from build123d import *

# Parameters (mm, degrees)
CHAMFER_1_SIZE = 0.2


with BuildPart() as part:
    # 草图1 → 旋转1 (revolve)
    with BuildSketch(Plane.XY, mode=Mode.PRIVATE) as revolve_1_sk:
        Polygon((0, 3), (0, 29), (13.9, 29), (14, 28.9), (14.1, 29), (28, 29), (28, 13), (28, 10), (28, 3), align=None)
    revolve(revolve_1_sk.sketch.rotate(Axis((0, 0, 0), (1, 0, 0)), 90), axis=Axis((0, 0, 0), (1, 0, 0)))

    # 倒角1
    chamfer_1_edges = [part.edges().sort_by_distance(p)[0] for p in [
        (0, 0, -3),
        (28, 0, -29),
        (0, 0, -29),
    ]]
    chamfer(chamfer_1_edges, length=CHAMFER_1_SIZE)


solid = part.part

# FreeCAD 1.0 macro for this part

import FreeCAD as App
import Part
import Sketcher
from FreeCAD import Vector


def edges_at(feature, points):
    """Names of the edges that pass closest to the given points."""
    edges = feature.Shape.Edges
    near = lambda p: min(range(len(edges)), key=lambda i: edges[i].distToShape(Part.Vertex(*p))[0])
    return sorted({f"Edge{near(p) + 1}" for p in points})


def add_polygon(sketch, points):
    """Adds a closed chain of lines whose ends are joined by coincident constraints."""
    first, n = sketch.GeometryCount, len(points)
    for a, b in zip(points, points[1:] + points[:1]):
        sketch.addGeometry(Part.LineSegment(App.Vector(*a, 0), App.Vector(*b, 0)), False)
    for i in range(n):
        sketch.addConstraint(Sketcher.Constraint("Coincident", first + i, 2, first + (i + 1) % n, 1))

doc = App.newDocument("Part")
body = doc.addObject("PartDesign::Body", "Body")

sketch1 = doc.addObject("Sketcher::SketchObject", "Sketch")
body.addObject(sketch1)
sketch1.AttachmentSupport = (doc.XY_Plane, [""])
sketch1.MapMode = "FlatFace"
add_polygon(sketch1, [(0, 29), (0, 3), (28, 3), (28, 29), (14.1, 29), (14, 28.9), (13.9, 29)])
sketch1.addConstraint([
    Sketcher.Constraint("Vertical", 0),
    Sketcher.Constraint("Horizontal", 1),
    Sketcher.Constraint("Vertical", 2),
    Sketcher.Constraint("Horizontal", 3),
    Sketcher.Constraint("Horizontal", 6),
    Sketcher.Constraint("PointOnObject", 0, 2, -2),
    Sketcher.Constraint("Perpendicular", 4, 5),
    Sketcher.Constraint("Horizontal", 3, 2, 5, 2),
    Sketcher.Constraint("Equal", 3, 6),
    Sketcher.Constraint("Equal", 4, 5),
    Sketcher.Constraint("DistanceX", 1, 1, 1, 2, 28.0),
    Sketcher.Constraint("DistanceY", 0, 2, 0, 1, 26.0),
    Sketcher.Constraint("DistanceX", 3, 2, 3, 1, 13.9),
    Sketcher.Constraint("DistanceY", -1, 1, 0, 2, 3.0),
])
revolution = doc.addObject("PartDesign::Revolution", "Revolution")
body.addObject(revolution)
revolution.Profile = sketch1
revolution.ReferenceAxis = (sketch1, ["H_Axis"])
revolution.Angle = 360
doc.recompute()

chamfer = doc.addObject("PartDesign::Chamfer", "Chamfer")
body.addObject(chamfer)
chamfer.Base = (revolution, edges_at(revolution, [(0, 0, -3), (28, 0, -29), (0, 0, -29)]))
chamfer.Size = 0.2

doc.recompute()
